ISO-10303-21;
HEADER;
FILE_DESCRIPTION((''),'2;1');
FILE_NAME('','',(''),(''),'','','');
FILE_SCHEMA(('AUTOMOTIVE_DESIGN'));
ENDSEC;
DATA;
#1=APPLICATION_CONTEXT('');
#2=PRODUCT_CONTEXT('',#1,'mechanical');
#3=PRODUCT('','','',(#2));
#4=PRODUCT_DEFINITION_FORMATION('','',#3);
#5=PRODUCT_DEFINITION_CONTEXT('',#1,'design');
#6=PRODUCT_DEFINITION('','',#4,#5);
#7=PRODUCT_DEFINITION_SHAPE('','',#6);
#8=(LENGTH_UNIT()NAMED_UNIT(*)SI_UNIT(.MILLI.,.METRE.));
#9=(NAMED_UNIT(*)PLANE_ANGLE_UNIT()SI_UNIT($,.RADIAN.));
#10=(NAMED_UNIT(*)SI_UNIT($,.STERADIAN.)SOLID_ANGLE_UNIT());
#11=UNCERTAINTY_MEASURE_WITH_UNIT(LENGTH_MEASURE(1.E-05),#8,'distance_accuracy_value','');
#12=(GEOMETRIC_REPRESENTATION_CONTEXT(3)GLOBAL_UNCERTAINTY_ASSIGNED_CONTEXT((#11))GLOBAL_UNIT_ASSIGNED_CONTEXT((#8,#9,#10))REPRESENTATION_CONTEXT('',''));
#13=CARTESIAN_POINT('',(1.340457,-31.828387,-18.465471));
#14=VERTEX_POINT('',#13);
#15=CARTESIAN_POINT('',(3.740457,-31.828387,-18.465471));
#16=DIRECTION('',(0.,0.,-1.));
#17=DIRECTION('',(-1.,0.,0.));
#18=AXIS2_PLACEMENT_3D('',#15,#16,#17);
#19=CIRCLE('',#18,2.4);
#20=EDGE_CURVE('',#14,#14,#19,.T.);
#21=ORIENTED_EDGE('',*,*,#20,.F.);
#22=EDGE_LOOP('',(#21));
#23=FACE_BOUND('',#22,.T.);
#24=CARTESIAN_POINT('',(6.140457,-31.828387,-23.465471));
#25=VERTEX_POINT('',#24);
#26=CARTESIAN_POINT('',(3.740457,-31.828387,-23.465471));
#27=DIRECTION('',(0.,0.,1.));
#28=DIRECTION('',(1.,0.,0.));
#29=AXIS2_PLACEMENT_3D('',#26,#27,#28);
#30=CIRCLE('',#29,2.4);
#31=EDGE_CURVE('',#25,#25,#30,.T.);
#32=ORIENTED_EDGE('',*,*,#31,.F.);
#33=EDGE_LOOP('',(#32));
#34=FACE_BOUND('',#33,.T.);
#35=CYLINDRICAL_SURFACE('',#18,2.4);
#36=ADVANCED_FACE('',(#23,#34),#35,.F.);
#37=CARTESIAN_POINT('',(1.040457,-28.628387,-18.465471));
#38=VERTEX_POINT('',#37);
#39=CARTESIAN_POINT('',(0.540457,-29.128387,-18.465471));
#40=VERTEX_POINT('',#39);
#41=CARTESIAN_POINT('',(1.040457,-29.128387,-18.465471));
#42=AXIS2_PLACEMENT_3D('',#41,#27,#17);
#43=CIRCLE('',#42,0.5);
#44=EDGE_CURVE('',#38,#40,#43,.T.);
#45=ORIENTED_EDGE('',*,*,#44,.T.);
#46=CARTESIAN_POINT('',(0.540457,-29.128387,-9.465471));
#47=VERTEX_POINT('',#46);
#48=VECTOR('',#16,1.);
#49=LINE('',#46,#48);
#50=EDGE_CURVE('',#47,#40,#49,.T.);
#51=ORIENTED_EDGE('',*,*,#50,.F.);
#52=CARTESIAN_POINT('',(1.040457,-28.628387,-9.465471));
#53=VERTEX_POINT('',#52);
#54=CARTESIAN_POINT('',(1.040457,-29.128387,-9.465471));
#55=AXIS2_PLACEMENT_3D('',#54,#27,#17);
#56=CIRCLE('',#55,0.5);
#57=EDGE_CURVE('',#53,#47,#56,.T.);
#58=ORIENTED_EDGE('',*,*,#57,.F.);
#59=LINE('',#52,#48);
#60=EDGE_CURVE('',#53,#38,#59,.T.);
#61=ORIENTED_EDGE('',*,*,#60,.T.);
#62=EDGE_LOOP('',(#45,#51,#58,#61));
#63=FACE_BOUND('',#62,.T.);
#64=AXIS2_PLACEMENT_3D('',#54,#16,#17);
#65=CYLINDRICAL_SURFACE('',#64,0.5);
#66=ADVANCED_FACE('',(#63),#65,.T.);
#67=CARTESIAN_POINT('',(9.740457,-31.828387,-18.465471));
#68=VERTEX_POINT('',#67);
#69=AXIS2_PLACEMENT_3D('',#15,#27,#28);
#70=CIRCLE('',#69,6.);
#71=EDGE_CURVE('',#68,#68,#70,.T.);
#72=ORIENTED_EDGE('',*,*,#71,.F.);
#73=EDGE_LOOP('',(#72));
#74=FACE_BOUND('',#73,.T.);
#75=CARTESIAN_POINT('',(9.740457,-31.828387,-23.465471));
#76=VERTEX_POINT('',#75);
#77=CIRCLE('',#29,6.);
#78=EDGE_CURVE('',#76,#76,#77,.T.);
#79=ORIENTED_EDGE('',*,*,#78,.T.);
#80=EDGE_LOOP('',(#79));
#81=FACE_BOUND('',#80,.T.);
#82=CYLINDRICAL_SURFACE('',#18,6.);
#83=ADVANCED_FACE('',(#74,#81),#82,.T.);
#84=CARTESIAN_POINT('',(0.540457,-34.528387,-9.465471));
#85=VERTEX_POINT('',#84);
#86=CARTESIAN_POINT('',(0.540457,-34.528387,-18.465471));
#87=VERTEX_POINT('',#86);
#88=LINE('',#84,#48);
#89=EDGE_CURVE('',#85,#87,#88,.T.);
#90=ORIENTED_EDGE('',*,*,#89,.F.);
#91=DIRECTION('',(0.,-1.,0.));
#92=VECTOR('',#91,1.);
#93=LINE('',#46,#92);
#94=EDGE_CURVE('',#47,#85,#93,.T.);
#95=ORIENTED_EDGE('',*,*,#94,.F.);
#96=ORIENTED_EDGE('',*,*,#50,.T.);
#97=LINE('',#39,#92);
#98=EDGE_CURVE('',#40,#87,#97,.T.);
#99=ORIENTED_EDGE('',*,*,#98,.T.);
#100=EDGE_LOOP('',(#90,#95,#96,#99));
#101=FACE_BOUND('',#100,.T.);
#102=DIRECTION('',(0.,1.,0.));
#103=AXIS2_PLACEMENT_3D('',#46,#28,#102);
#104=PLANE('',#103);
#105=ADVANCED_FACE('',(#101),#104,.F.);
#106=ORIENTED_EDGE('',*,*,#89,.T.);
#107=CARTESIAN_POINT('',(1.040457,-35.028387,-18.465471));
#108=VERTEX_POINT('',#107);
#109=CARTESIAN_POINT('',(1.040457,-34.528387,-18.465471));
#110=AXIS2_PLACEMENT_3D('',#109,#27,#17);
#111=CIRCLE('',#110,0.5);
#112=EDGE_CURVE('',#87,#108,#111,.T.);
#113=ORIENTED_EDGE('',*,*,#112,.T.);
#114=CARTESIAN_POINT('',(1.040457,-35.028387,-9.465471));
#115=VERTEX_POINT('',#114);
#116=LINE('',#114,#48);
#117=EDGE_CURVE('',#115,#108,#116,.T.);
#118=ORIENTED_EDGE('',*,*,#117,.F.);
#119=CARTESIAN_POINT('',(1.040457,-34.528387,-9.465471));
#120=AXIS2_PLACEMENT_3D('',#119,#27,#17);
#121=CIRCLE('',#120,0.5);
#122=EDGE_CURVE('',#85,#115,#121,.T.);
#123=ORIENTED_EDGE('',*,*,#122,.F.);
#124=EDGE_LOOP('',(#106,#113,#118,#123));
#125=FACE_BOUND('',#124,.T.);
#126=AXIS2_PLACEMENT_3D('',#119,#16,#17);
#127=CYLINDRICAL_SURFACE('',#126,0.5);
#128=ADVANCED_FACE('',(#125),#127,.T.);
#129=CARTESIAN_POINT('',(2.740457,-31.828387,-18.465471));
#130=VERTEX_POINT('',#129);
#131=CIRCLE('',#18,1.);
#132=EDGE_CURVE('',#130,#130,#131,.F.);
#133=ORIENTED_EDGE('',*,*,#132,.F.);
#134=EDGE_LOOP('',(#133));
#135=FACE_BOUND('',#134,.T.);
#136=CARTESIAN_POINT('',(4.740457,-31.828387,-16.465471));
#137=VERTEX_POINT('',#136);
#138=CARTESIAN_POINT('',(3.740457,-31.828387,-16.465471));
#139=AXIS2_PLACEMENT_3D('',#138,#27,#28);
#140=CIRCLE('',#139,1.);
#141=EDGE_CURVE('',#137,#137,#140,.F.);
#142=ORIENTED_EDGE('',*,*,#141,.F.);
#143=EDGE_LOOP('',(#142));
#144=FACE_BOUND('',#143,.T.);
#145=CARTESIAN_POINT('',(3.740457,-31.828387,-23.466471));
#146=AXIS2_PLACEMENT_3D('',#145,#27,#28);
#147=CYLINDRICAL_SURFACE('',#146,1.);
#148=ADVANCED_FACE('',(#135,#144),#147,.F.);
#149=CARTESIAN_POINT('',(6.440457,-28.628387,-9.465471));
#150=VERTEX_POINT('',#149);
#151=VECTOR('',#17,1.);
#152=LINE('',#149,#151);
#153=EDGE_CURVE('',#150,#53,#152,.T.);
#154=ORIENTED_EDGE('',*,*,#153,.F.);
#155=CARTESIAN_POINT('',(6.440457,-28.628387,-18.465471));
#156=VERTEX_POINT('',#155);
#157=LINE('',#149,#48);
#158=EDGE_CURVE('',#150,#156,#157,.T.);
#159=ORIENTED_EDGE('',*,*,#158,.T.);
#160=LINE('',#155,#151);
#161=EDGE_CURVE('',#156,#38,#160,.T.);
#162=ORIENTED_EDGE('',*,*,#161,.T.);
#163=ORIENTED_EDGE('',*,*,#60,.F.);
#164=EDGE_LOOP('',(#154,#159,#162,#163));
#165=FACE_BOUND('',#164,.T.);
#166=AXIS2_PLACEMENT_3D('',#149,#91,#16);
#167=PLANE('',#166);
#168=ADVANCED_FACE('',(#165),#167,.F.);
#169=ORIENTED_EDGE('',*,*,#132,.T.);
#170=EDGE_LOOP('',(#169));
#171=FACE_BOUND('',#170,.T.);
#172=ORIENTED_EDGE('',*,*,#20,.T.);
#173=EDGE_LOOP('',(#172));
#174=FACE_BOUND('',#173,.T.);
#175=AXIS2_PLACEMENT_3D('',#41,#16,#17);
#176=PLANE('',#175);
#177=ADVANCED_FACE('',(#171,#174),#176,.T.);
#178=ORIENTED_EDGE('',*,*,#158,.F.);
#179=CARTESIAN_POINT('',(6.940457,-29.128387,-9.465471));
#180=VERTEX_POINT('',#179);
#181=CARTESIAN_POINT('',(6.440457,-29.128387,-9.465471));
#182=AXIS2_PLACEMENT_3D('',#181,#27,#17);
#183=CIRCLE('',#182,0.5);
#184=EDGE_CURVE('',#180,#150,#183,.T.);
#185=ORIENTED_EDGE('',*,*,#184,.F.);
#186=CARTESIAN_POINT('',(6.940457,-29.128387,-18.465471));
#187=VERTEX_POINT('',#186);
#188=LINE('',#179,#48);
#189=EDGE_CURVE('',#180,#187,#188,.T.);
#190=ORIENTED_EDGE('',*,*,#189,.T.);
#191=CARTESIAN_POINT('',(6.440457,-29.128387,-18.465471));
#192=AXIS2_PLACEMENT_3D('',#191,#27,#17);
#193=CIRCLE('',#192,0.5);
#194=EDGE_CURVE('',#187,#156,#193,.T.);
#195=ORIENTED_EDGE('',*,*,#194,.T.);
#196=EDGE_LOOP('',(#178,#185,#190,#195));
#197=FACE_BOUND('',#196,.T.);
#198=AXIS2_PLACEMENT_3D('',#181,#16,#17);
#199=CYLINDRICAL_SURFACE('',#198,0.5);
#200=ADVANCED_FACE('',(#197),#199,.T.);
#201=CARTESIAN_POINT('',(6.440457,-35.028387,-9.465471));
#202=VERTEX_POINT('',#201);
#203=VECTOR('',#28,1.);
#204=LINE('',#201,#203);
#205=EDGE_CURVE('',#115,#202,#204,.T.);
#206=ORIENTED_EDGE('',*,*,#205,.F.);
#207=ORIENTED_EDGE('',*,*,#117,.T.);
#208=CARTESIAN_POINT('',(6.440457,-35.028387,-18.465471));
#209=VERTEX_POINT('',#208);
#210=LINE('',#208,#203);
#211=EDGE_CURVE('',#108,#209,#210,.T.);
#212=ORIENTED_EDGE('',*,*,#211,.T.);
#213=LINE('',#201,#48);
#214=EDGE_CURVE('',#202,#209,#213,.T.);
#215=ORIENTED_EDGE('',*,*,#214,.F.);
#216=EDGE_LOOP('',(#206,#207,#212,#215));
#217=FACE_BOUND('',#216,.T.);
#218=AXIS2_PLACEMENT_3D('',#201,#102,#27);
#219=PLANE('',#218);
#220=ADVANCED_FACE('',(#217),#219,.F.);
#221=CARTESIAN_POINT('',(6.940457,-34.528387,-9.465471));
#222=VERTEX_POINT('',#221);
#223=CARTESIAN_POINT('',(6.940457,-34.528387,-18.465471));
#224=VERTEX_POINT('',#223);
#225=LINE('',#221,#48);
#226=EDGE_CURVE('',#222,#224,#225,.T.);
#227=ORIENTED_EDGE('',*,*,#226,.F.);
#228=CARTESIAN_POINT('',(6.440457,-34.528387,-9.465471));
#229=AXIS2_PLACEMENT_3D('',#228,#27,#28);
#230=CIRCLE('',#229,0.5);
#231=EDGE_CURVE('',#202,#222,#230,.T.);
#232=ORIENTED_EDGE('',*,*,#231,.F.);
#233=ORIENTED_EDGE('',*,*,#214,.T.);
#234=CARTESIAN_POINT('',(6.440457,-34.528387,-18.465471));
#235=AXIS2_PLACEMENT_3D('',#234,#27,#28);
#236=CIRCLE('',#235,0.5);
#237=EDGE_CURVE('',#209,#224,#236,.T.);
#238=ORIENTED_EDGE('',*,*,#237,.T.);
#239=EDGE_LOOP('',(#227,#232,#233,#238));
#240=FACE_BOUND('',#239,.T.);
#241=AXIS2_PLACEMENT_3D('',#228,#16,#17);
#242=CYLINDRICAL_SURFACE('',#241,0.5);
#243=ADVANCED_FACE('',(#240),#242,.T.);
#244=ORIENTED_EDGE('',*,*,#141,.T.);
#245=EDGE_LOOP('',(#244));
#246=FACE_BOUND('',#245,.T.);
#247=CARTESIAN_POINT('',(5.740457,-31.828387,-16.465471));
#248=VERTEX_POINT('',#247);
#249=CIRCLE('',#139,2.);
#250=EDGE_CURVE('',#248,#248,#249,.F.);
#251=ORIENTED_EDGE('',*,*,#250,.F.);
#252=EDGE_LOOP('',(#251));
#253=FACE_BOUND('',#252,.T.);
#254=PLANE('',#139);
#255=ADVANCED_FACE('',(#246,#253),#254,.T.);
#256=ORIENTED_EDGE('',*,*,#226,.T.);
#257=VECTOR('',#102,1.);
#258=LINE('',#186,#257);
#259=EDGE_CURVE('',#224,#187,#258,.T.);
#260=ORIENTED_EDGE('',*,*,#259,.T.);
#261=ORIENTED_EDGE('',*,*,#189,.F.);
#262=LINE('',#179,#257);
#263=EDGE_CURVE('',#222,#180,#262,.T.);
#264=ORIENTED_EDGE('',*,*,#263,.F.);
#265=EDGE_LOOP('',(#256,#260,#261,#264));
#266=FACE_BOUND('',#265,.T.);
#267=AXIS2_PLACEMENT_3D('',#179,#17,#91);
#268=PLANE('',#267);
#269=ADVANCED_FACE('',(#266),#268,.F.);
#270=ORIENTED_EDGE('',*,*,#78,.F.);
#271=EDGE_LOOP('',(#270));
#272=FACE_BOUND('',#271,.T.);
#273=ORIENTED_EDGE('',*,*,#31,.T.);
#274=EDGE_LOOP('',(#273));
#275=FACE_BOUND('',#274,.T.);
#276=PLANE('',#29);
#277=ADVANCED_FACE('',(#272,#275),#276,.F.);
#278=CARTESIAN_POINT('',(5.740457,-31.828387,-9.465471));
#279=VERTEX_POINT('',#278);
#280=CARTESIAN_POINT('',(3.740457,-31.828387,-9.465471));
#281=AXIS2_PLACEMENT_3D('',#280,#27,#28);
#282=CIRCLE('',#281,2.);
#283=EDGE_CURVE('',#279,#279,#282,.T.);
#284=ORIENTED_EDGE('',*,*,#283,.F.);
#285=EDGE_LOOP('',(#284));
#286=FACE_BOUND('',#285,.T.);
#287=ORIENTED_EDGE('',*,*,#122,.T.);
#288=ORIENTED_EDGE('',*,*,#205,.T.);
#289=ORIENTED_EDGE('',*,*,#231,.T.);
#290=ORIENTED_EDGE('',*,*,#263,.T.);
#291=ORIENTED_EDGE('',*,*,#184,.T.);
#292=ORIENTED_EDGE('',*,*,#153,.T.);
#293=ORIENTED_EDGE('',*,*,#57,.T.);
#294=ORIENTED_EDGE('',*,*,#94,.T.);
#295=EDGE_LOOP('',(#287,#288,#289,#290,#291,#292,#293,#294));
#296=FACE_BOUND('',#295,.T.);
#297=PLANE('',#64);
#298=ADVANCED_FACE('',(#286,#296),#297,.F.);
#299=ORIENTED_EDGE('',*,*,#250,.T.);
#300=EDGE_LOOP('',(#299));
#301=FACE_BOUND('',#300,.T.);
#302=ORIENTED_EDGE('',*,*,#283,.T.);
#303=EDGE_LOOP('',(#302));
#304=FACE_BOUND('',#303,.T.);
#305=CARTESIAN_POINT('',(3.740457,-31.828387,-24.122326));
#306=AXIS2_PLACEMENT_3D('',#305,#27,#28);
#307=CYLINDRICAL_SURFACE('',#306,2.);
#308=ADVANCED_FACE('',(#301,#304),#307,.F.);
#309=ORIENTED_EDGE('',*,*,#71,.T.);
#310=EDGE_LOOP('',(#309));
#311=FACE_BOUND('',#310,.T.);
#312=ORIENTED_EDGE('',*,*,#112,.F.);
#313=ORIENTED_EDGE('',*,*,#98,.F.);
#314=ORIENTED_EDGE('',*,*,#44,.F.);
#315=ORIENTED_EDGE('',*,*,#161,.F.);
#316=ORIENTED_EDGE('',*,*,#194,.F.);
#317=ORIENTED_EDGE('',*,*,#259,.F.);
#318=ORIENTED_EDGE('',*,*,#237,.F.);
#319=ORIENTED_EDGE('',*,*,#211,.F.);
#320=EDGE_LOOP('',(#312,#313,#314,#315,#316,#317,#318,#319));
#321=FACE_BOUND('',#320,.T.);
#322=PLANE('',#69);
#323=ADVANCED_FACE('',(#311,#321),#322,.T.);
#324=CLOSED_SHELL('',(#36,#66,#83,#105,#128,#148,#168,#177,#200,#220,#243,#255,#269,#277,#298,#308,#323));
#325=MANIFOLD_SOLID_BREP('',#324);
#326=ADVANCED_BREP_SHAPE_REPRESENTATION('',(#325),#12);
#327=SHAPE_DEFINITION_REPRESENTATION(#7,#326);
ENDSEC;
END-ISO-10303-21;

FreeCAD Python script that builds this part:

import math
import FreeCAD as App
import Part
import Sketcher
from FreeCAD import Vector

doc = App.newDocument("Part")
body = doc.addObject("PartDesign::Body", "Body")

sketch1 = body.newObject("Sketcher::SketchObject", "Sketch")
sketch1.AttachmentSupport = (doc.getObject("XY_Plane"), [""])
sketch1.MapMode = "FlatFace"
sketch1.AttachmentOffset = App.Placement(Vector(0, 0, -23.465471), App.Rotation())
sketch1.addGeometry(Part.Circle(Vector(3.7, -31.8, 0), Vector(0, 0, 1), 6), False)
sketch1.addGeometry(Part.Circle(Vector(3.7, -31.8, 0), Vector(0, 0, 1), 2.4), False)
sketch1.addConstraint(Sketcher.Constraint("Coincident", 1, 3, 0, 3))
sketch1.addConstraint(Sketcher.Constraint("Diameter", 0, 12.0))
sketch1.addConstraint(Sketcher.Constraint("Diameter", 1, 4.8))
sketch1.addConstraint(Sketcher.Constraint("DistanceX", -1, 1, 0, 3, 3.740457))
sketch1.addConstraint(Sketcher.Constraint("DistanceY", 0, 3, -1, 1, 31.828387))
pad1 = body.newObject("PartDesign::Pad", "Pad")
pad1.Profile = sketch1
pad1.Length = 5

sketch2 = body.newObject("Sketcher::SketchObject", "Sketch001")
sketch2.AttachmentSupport = (doc.getObject("XY_Plane"), [""])
sketch2.MapMode = "FlatFace"
sketch2.AttachmentOffset = App.Placement(Vector(0, 0, -18.465471), App.Rotation())
sketch2.addGeometry(Part.LineSegment(Vector(6.44, -28.63, 0), Vector(1.04, -28.63, 0)), False)
sketch2.addGeometry(Part.ArcOfCircle(Part.Circle(Vector(1.04, -29.13, 0), Vector(0, 0, 1), 0.5), math.radians(90), math.radians(180)), False)
sketch2.addGeometry(Part.LineSegment(Vector(0.54, -29.13, 0), Vector(0.54, -34.53, 0)), False)
sketch2.addGeometry(Part.ArcOfCircle(Part.Circle(Vector(1.04, -34.53, 0), Vector(0, 0, 1), 0.5), math.radians(-180), math.radians(-90)), False)
sketch2.addGeometry(Part.LineSegment(Vector(1.04, -35.03, 0), Vector(6.44, -35.03, 0)), False)
sketch2.addGeometry(Part.ArcOfCircle(Part.Circle(Vector(6.44, -34.53, 0), Vector(0, 0, 1), 0.5), math.radians(-90), math.radians(0)), False)
sketch2.addGeometry(Part.LineSegment(Vector(6.94, -34.53, 0), Vector(6.94, -29.13, 0)), False)
sketch2.addGeometry(Part.ArcOfCircle(Part.Circle(Vector(6.44, -29.13, 0), Vector(0, 0, 1), 0.5), math.radians(0), math.radians(90)), False)
sketch2.addConstraint(Sketcher.Constraint("Tangent", 0, 2, 1, 1))
sketch2.addConstraint(Sketcher.Constraint("Tangent", 1, 2, 2, 1))
sketch2.addConstraint(Sketcher.Constraint("Tangent", 2, 2, 3, 1))
sketch2.addConstraint(Sketcher.Constraint("Tangent", 3, 2, 4, 1))
sketch2.addConstraint(Sketcher.Constraint("Tangent", 4, 2, 5, 1))
sketch2.addConstraint(Sketcher.Constraint("Tangent", 5, 2, 6, 1))
sketch2.addConstraint(Sketcher.Constraint("Tangent", 6, 2, 7, 1))
sketch2.addConstraint(Sketcher.Constraint("Tangent", 7, 2, 0, 1))
sketch2.addConstraint(Sketcher.Constraint("Horizontal", 0))
sketch2.addConstraint(Sketcher.Constraint("Vertical", 2))
sketch2.addConstraint(Sketcher.Constraint("Horizontal", 4))
sketch2.addConstraint(Sketcher.Constraint("Vertical", 6))
sketch2.addConstraint(Sketcher.Constraint("Equal", 1, 3))
sketch2.addConstraint(Sketcher.Constraint("Equal", 3, 5))
sketch2.addConstraint(Sketcher.Constraint("Equal", 5, 7))
sketch2.addConstraint(Sketcher.Constraint("Equal", 4, 2))
sketch2.addConstraint(Sketcher.Constraint("Radius", 1, 0.5))
sketch2.addConstraint(Sketcher.Constraint("DistanceX", 0, 2, 0, 1, 5.4))
sketch2.addConstraint(Sketcher.Constraint("DistanceX", -1, 1, 1, 3, 1.040457))
sketch2.addConstraint(Sketcher.Constraint("DistanceY", 1, 3, -1, 1, 29.128387))
pad2 = body.newObject("PartDesign::Pad", "Pad001")
pad2.Profile = sketch2
pad2.Length = 9

sketch3 = body.newObject("Sketcher::SketchObject", "Sketch002")
sketch3.AttachmentSupport = (doc.getObject("XY_Plane"), [""])
sketch3.MapMode = "FlatFace"
sketch3.AttachmentOffset = App.Placement(Vector(0, 0, -9.465471), App.Rotation())
sketch3.addGeometry(Part.Circle(Vector(3.7, -31.8, 0), Vector(0, 0, 1), 1), False)
sketch3.addConstraint(Sketcher.Constraint("Diameter", 0, 2.0))
sketch3.addConstraint(Sketcher.Constraint("DistanceX", -1, 1, 0, 3, 3.740457))
sketch3.addConstraint(Sketcher.Constraint("DistanceY", 0, 3, -1, 1, 31.828387))
pocket1 = body.newObject("PartDesign::Pocket", "Pocket")
pocket1.Profile = sketch3
pocket1.Type = "UpToFirst"

sketch4 = body.newObject("Sketcher::SketchObject", "Sketch003")
sketch4.AttachmentSupport = (doc.getObject("XY_Plane"), [""])
sketch4.MapMode = "FlatFace"
sketch4.AttachmentOffset = App.Placement(Vector(0, 0, -9.465471), App.Rotation())
sketch4.addGeometry(Part.Circle(Vector(3.7, -31.8, 0), Vector(0, 0, 1), 2), False)
sketch4.addConstraint(Sketcher.Constraint("Diameter", 0, 4.0))
sketch4.addConstraint(Sketcher.Constraint("DistanceX", -1, 1, 0, 3, 3.740457))
sketch4.addConstraint(Sketcher.Constraint("DistanceY", 0, 3, -1, 1, 31.828387))
pocket2 = body.newObject("PartDesign::Pocket", "Pocket001")
pocket2.Profile = sketch4
pocket2.Length = 7

doc.recompute()
